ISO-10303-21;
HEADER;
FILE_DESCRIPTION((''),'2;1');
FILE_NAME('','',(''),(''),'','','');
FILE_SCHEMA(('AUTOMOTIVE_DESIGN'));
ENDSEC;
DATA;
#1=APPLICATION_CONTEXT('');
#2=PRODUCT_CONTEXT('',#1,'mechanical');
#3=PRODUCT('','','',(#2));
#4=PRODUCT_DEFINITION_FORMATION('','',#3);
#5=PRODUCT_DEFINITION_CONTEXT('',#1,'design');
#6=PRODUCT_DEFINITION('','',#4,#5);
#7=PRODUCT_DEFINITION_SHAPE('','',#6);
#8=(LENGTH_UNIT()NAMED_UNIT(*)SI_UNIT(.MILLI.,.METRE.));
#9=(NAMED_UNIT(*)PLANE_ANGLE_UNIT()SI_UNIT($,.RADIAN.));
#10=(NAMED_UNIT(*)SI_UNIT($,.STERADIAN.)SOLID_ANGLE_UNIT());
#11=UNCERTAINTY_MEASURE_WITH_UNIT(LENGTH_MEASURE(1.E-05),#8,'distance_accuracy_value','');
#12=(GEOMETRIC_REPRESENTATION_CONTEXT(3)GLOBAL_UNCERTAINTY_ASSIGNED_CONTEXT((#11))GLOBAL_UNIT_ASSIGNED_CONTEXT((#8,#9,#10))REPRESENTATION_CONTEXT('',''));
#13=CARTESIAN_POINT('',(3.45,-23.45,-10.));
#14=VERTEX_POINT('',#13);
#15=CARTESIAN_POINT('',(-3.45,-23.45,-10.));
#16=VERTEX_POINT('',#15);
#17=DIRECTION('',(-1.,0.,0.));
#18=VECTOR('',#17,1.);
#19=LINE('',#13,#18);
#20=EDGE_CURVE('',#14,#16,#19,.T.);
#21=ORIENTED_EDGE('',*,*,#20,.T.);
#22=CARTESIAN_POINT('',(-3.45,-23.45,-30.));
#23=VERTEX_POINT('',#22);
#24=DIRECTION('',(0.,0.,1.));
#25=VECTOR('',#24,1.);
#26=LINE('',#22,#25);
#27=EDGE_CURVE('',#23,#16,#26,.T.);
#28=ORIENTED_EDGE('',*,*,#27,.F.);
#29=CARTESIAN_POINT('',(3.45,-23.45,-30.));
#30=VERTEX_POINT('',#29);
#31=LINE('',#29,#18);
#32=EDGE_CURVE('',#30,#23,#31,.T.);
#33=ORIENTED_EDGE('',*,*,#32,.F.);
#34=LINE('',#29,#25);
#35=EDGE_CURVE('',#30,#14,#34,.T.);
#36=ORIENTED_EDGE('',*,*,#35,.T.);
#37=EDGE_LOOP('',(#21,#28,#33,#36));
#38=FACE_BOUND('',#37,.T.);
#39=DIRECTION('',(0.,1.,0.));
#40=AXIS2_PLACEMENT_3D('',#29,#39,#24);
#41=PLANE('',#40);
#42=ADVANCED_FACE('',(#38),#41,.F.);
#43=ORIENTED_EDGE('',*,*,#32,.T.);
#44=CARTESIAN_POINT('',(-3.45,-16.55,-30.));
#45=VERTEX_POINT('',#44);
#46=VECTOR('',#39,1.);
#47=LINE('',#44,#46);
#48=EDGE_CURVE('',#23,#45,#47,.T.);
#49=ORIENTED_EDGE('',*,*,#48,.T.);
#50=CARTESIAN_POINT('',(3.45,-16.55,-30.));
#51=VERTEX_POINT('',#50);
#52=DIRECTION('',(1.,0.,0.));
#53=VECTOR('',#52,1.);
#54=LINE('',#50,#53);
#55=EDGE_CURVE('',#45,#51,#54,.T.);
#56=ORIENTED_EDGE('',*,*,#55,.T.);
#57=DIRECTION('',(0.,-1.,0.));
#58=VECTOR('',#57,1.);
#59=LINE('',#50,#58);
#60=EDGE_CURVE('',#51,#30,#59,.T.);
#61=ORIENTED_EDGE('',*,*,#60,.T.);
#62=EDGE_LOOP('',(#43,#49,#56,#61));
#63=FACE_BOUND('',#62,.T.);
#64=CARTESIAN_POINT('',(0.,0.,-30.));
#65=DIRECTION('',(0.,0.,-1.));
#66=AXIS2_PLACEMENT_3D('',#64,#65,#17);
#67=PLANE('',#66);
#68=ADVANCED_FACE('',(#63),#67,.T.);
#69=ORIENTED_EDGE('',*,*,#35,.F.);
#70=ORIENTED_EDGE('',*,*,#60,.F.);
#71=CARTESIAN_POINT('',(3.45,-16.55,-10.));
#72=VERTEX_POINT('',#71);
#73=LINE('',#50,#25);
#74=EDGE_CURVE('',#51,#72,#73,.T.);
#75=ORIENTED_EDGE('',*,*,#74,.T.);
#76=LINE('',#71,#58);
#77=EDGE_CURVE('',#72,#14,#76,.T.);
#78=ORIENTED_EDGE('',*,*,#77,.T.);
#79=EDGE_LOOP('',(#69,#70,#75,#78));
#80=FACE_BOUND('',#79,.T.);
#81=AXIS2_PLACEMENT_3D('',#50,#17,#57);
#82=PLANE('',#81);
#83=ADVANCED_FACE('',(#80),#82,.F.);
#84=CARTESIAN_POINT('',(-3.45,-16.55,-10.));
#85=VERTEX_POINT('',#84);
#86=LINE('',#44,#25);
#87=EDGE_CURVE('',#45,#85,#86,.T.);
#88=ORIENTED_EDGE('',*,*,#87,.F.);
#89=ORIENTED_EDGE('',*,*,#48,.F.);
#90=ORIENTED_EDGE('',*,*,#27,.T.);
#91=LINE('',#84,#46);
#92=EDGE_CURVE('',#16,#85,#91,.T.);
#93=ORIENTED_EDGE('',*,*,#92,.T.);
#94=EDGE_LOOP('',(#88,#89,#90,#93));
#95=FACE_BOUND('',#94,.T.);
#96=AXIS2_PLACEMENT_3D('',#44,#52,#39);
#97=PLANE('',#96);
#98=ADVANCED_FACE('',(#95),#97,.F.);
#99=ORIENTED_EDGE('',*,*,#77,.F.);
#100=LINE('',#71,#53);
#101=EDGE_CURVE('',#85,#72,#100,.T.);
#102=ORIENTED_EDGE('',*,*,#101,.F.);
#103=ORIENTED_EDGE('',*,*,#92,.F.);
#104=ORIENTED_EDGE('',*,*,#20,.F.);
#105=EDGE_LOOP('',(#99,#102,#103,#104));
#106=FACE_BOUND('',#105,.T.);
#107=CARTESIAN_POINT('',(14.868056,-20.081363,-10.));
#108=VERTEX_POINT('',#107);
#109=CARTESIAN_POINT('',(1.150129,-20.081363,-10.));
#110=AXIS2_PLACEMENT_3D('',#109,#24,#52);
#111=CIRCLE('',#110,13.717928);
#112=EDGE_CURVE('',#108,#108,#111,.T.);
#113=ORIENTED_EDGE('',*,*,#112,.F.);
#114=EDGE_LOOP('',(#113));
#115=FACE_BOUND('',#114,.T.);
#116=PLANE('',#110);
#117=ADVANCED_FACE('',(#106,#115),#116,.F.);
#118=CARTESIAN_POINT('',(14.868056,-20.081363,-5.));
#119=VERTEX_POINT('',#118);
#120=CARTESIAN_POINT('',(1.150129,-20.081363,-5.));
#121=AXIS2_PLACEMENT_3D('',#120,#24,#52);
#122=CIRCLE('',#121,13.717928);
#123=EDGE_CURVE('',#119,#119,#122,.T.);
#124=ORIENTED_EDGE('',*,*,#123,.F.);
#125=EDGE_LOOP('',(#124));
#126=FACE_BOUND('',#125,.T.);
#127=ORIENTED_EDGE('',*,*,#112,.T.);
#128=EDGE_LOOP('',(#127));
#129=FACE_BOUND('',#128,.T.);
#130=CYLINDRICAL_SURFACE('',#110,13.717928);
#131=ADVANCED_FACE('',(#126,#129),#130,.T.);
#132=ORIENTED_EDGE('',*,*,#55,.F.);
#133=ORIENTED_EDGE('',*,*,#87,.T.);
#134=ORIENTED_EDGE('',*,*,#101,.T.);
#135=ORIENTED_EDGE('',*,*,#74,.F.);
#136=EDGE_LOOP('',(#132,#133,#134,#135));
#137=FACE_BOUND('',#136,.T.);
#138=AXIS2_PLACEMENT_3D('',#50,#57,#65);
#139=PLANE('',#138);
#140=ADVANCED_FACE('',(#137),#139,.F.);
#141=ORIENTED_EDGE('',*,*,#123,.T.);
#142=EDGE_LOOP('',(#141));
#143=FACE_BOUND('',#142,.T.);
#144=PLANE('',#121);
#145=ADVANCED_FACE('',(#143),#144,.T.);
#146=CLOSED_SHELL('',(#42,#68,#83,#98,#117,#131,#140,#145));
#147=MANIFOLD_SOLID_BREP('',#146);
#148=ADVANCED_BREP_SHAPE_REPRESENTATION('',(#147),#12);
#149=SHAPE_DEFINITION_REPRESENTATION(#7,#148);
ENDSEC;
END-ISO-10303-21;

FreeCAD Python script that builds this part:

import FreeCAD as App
import Part
import Sketcher

doc = App.newDocument("Part")
body = doc.addObject("PartDesign::Body", "Body")

# Sketch on XY plane
sketch1 = doc.addObject("Sketcher::SketchObject", "Sketch")
body.addObject(sketch1)
sketch1.AttachmentSupport = (doc.XY_Plane, [""])
sketch1.MapMode = "FlatFace"
sketch1.AttachmentOffset = App.Placement(App.Vector(0, 0, -5), App.Rotation())
sketch1.addGeometry(Part.Circle(App.Vector(1.150129, -20.081363, 0), App.Vector(0, 0, 1), 13.717928), False)
sketch1.addConstraint(Sketcher.Constraint("Diameter", 0, 27.435856))
sketch1.addConstraint(Sketcher.Constraint("DistanceX", -1, 1, 0, 3, 1.150129))
sketch1.addConstraint(Sketcher.Constraint("DistanceY", 0, 3, -1, 1, 20.081363))
pad1 = doc.addObject("PartDesign::Pad", "Pad")
body.addObject(pad1)
pad1.Profile = sketch1
pad1.Length = 5
pad1.Reversed = True

# Sketch on XY plane
sketch2 = doc.addObject("Sketcher::SketchObject", "Sketch001")
body.addObject(sketch2)
sketch2.AttachmentSupport = (doc.XY_Plane, [""])
sketch2.MapMode = "FlatFace"
sketch2.AttachmentOffset = App.Placement(App.Vector(0, 0, -10), App.Rotation())
sketch2.addGeometry(Part.LineSegment(App.Vector(3.45, -16.55, 0), App.Vector(3.45, -23.45, 0)), False)
sketch2.addGeometry(Part.LineSegment(App.Vector(3.45, -23.45, 0), App.Vector(-3.45, -23.45, 0)), False)
sketch2.addGeometry(Part.LineSegment(App.Vector(-3.45, -23.45, 0), App.Vector(-3.45, -16.55, 0)), False)
sketch2.addGeometry(Part.LineSegment(App.Vector(-3.45, -16.55, 0), App.Vector(3.45, -16.55, 0)), False)
sketch2.addConstraint(Sketcher.Constraint("Coincident", 0, 2, 1, 1))
sketch2.addConstraint(Sketcher.Constraint("Coincident", 1, 2, 2, 1))
sketch2.addConstraint(Sketcher.Constraint("Coincident", 2, 2, 3, 1))
sketch2.addConstraint(Sketcher.Constraint("Coincident", 3, 2, 0, 1))
sketch2.addConstraint(Sketcher.Constraint("Vertical", 0))
sketch2.addConstraint(Sketcher.Constraint("Horizontal", 1))
sketch2.addConstraint(Sketcher.Constraint("Vertical", 2))
sketch2.addConstraint(Sketcher.Constraint("Horizontal", 3))
sketch2.addConstraint(Sketcher.Constraint("Equal", 3, 0))
sketch2.addConstraint(Sketcher.Constraint("DistanceX", 1, 2, 1, 1, 6.9))
sketch2.addConstraint(Sketcher.Constraint("DistanceX", -1, 1, 0, 2, 3.45))
sketch2.addConstraint(Sketcher.Constraint("DistanceY", 0, 2, -1, 1, 23.45))
pad2 = doc.addObject("PartDesign::Pad", "Pad001")
body.addObject(pad2)
pad2.Profile = sketch2
pad2.Length = 20
pad2.Reversed = True

doc.recompute()
